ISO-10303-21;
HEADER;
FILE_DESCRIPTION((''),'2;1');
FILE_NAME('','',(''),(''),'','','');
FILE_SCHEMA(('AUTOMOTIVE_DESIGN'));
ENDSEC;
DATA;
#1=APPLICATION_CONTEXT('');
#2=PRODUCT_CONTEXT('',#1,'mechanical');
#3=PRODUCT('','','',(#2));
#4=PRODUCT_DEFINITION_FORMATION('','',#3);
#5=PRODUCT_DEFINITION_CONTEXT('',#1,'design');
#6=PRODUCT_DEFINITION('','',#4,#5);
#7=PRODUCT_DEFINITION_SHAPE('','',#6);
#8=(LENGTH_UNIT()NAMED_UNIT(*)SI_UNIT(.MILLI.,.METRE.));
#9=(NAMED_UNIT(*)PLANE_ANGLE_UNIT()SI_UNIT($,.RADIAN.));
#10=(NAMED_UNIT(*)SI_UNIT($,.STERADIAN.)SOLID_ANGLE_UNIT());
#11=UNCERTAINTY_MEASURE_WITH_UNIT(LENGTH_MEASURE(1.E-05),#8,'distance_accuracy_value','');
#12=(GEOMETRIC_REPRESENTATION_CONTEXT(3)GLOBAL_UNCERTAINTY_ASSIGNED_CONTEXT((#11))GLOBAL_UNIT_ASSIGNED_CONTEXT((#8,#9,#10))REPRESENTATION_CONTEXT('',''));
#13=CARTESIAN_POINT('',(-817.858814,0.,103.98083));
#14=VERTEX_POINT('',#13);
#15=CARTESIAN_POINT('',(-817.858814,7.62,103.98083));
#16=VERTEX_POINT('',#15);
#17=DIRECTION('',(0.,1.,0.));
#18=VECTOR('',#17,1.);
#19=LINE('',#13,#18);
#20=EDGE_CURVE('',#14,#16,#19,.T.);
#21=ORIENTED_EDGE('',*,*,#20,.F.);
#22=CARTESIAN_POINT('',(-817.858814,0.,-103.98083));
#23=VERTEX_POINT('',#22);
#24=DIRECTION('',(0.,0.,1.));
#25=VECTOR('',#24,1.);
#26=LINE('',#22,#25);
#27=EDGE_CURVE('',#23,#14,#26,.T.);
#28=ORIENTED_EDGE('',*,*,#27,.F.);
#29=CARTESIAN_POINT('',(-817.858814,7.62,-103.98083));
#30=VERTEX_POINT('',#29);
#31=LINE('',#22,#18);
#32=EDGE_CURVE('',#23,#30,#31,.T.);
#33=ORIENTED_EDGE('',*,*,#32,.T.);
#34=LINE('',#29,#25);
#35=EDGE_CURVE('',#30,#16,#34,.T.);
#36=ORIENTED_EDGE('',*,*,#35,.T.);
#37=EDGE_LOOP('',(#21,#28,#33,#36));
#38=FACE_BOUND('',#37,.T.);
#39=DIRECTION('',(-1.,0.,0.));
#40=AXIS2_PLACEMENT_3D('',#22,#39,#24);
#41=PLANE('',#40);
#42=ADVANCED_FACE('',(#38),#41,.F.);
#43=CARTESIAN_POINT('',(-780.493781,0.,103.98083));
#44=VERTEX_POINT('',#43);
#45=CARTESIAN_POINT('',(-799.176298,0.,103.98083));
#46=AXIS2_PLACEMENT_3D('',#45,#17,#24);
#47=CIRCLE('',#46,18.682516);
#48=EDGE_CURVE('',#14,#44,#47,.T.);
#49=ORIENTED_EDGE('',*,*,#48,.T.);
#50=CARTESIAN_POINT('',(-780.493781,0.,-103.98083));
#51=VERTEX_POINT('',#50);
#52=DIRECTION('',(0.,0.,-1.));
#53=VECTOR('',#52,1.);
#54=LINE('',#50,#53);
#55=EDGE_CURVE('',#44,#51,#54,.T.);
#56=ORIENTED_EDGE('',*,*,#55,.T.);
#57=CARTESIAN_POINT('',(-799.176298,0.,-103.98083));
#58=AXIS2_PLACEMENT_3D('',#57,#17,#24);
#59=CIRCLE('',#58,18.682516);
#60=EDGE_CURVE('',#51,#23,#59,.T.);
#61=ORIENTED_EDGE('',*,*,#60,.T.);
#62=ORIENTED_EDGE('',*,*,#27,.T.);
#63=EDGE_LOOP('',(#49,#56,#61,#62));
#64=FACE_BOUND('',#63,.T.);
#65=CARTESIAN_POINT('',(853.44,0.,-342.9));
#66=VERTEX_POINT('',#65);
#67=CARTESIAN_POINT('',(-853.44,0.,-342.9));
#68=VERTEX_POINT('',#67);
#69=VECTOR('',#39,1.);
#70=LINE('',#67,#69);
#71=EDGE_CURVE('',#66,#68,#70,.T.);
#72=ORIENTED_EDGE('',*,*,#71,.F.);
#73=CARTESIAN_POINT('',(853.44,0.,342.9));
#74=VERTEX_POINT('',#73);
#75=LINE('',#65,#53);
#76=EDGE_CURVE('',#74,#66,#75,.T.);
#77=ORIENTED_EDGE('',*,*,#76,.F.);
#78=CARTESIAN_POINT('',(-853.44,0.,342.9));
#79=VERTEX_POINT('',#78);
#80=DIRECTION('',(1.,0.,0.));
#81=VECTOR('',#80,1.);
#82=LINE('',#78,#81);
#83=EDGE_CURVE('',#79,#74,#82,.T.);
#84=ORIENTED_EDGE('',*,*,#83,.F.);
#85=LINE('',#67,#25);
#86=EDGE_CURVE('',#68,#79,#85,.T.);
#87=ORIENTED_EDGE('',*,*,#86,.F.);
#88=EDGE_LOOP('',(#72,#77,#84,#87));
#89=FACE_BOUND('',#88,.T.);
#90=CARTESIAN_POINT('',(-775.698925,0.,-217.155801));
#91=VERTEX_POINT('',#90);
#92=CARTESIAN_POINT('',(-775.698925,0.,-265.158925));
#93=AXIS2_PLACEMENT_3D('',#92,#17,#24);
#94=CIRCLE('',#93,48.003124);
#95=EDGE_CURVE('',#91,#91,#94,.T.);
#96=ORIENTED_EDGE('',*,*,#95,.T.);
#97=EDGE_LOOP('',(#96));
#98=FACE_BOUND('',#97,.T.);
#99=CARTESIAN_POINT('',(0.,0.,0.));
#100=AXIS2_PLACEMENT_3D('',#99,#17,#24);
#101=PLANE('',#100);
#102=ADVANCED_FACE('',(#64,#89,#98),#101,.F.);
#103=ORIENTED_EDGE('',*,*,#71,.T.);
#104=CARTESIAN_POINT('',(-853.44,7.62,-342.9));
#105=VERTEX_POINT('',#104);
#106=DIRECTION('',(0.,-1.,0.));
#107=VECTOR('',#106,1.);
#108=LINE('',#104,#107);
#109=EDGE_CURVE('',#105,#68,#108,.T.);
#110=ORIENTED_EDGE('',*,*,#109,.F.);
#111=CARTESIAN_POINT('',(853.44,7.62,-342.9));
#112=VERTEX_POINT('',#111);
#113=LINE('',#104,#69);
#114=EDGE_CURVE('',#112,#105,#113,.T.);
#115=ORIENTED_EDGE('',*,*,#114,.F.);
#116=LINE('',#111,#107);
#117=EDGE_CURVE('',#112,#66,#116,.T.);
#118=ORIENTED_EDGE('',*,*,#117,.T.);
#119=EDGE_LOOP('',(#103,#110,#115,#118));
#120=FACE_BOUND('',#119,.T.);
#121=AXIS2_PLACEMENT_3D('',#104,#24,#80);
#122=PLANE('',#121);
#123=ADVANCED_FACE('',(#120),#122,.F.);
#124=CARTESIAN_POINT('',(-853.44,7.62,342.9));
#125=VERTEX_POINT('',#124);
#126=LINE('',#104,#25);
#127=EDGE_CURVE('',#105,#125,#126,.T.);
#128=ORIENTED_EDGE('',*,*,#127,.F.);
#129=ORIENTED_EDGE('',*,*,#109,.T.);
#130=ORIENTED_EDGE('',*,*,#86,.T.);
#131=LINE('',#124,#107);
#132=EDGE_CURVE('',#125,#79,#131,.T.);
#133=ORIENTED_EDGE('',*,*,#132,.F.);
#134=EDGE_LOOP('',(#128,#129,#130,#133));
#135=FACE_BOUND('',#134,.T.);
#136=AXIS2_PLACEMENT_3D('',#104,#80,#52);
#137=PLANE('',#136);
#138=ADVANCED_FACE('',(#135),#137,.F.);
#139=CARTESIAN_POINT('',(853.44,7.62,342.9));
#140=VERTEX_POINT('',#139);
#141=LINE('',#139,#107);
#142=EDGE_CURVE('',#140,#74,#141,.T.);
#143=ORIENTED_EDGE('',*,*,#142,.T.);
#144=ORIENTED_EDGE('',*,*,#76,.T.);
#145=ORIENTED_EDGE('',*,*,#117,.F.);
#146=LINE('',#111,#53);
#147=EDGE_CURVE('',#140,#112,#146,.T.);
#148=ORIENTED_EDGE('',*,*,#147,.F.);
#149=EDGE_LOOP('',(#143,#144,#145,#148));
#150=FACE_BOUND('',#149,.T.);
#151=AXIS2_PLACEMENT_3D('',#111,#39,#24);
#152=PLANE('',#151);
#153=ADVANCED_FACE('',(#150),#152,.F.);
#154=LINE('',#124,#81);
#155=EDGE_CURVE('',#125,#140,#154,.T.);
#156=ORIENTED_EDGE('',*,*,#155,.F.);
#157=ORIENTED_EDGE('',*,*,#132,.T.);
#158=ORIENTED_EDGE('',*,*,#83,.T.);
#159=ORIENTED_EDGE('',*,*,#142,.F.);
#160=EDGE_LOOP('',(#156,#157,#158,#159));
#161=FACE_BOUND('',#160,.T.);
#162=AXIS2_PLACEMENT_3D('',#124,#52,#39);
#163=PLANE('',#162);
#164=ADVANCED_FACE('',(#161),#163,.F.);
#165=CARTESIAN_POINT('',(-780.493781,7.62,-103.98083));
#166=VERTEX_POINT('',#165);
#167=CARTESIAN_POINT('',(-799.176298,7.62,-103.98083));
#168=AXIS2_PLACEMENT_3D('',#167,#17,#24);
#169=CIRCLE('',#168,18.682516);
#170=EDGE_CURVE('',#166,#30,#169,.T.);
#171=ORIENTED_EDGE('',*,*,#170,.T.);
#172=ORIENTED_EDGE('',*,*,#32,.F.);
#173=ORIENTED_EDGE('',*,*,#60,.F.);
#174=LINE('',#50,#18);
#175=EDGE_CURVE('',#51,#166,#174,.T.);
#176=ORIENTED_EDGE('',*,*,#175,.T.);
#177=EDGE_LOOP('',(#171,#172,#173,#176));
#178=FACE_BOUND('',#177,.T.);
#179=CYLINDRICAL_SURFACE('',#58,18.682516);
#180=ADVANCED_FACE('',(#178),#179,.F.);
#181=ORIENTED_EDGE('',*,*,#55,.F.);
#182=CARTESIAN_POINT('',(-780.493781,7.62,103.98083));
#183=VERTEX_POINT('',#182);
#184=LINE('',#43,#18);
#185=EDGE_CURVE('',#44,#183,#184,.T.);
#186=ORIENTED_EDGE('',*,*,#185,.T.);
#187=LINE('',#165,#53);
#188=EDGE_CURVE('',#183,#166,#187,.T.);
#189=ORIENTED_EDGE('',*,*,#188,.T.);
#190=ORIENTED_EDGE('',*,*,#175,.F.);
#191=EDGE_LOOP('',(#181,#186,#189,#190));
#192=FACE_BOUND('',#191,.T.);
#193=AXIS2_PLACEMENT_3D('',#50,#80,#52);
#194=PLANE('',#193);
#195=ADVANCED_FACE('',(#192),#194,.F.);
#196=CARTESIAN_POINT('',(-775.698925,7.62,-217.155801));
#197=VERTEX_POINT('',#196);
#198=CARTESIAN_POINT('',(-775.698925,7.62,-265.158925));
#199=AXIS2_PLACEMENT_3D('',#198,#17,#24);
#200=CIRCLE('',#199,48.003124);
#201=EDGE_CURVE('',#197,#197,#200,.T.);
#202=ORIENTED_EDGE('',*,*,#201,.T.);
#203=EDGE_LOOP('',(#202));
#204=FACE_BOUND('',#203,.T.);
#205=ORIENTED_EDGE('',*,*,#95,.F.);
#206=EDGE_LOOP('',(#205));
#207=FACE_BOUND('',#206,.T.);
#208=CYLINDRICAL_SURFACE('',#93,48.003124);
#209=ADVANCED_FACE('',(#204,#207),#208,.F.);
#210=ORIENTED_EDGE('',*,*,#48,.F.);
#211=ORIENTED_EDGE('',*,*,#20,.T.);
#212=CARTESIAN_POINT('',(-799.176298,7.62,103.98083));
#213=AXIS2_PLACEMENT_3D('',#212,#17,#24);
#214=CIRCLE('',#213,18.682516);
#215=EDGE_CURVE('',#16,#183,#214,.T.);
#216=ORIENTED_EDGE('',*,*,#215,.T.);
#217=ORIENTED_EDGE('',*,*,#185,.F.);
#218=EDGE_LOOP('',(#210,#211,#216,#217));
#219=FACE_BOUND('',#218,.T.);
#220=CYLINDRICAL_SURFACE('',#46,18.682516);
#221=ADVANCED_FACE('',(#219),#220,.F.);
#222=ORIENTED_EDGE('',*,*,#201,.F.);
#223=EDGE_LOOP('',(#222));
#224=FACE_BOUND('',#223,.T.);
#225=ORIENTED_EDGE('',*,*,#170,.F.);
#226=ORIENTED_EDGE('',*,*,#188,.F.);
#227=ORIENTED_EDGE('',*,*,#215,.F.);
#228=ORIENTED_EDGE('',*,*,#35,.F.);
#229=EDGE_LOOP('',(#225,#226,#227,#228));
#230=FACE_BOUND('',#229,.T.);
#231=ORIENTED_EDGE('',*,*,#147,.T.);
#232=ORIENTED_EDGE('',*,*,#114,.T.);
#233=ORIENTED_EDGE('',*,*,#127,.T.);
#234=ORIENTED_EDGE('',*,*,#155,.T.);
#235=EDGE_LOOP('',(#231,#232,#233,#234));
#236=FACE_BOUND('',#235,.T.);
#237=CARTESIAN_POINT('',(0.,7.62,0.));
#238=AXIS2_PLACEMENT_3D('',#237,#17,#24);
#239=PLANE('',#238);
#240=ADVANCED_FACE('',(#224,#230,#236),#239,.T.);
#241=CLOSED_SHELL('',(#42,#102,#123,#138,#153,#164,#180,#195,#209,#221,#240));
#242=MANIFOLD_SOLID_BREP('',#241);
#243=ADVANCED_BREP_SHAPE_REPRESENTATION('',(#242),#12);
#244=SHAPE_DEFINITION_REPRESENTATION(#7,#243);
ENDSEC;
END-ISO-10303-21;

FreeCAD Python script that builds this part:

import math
import FreeCAD as App
import Part
import Sketcher
from FreeCAD import Vector
Q = App.Units.Quantity

doc = App.newDocument("Part")
body = doc.addObject("PartDesign::Body", "Body")

# Sketch on XZ plane
sketch1 = body.newObject("Sketcher::SketchObject", "Sketch")
sketch1.AttachmentSupport = (doc.getObject("XZ_Plane"), [""])
sketch1.MapMode = "FlatFace"
sketch1.addGeometry(Part.LineSegment(Vector(-853, -343, 0), Vector(-853, 343, 0)), False)
sketch1.addGeometry(Part.LineSegment(Vector(-853, 343, 0), Vector(853, 343, 0)), False)
sketch1.addGeometry(Part.LineSegment(Vector(853, 343, 0), Vector(853, -343, 0)), False)
sketch1.addGeometry(Part.LineSegment(Vector(853, -343, 0), Vector(-853, -343, 0)), False)
sketch1.addConstraint(Sketcher.Constraint("Coincident", 0, 2, 1, 1))
sketch1.addConstraint(Sketcher.Constraint("Coincident", 1, 2, 2, 1))
sketch1.addConstraint(Sketcher.Constraint("Coincident", 2, 2, 3, 1))
sketch1.addConstraint(Sketcher.Constraint("Coincident", 3, 2, 0, 1))
sketch1.addConstraint(Sketcher.Constraint("Vertical", 0))
sketch1.addConstraint(Sketcher.Constraint("Horizontal", 1))
sketch1.addConstraint(Sketcher.Constraint("Vertical", 2))
sketch1.addConstraint(Sketcher.Constraint("Horizontal", 3))
sketch1.addConstraint(Sketcher.Constraint("Symmetric", 0, 2, 2, 2, -1, 1))
sketch1.addConstraint(Sketcher.Constraint("DistanceY", 0, 1, 0, 2, Q("27 in")))
sketch1.addConstraint(Sketcher.Constraint("DistanceX", 1, 1, 1, 2, Q("67.2 in")))
pad1 = body.newObject("PartDesign::Pad", "Pad")
pad1.Profile = sketch1
pad1.Length = Q("0.3 in")
pad1.Reversed = True

# Sketch on XZ plane
sketch2 = body.newObject("Sketcher::SketchObject", "Sketch001")
sketch2.AttachmentSupport = (doc.getObject("XZ_Plane"), [""])
sketch2.MapMode = "FlatFace"
sketch2.AttachmentOffset = App.Placement(Vector(0, 0, -0.3 * 25.4), App.Rotation())
sketch2.addGeometry(Part.Circle(Vector(-776, -265, 0), Vector(0, 0, 1), 48), False)
sketch2.addGeometry(Part.LineSegment(Vector(-780, 104, 0), Vector(-780, -104, 0)), False)
sketch2.addGeometry(Part.ArcOfCircle(Part.Circle(Vector(-799, -104, 0), Vector(0, 0, 1), 19), math.radians(180), math.radians(360)), False)
sketch2.addGeometry(Part.LineSegment(Vector(-818, -104, 0), Vector(-818, 104, 0)), False)
sketch2.addGeometry(Part.ArcOfCircle(Part.Circle(Vector(-799, 104, 0), Vector(0, 0, 1), 19), math.radians(0), math.radians(180)), False)
sketch2.addConstraint(Sketcher.Constraint("Tangent", 1, 2, 2, 2))
sketch2.addConstraint(Sketcher.Constraint("Tangent", 2, 1, 3, 1))
sketch2.addConstraint(Sketcher.Constraint("Tangent", 3, 2, 4, 2))
sketch2.addConstraint(Sketcher.Constraint("Tangent", 4, 1, 1, 1))
sketch2.addConstraint(Sketcher.Constraint("Vertical", 1))
sketch2.addConstraint(Sketcher.Constraint("Vertical", 3))
sketch2.addConstraint(Sketcher.Constraint("Diameter", 0, Q("96.006248 mm")))
sketch2.addConstraint(Sketcher.Constraint("Radius", 2, Q("18.682516 mm")))
sketch2.addConstraint(Sketcher.Constraint("DistanceY", 1, 2, 1, 1, Q("207.961661 mm")))
sketch2.addConstraint(Sketcher.Constraint("DistanceY", 2, 3, -1, 1, Q("103.98083 mm")))
sketch2.addConstraint(Sketcher.Constraint("DistanceX", 1, 2, -1, 1, Q("780.493781 mm")))
sketch2.addConstraint(Sketcher.Constraint("DistanceX", 2, 1, 0, 3, Q("42.159889 mm")))
sketch2.addConstraint(Sketcher.Constraint("DistanceY", 0, 3, -1, 1, Q("265.158925 mm")))
pocket1 = body.newObject("PartDesign::Pocket", "Pocket")
pocket1.Profile = sketch2
pocket1.Length = Q("0.3 in")
pocket1.Reversed = True

doc.recompute()
